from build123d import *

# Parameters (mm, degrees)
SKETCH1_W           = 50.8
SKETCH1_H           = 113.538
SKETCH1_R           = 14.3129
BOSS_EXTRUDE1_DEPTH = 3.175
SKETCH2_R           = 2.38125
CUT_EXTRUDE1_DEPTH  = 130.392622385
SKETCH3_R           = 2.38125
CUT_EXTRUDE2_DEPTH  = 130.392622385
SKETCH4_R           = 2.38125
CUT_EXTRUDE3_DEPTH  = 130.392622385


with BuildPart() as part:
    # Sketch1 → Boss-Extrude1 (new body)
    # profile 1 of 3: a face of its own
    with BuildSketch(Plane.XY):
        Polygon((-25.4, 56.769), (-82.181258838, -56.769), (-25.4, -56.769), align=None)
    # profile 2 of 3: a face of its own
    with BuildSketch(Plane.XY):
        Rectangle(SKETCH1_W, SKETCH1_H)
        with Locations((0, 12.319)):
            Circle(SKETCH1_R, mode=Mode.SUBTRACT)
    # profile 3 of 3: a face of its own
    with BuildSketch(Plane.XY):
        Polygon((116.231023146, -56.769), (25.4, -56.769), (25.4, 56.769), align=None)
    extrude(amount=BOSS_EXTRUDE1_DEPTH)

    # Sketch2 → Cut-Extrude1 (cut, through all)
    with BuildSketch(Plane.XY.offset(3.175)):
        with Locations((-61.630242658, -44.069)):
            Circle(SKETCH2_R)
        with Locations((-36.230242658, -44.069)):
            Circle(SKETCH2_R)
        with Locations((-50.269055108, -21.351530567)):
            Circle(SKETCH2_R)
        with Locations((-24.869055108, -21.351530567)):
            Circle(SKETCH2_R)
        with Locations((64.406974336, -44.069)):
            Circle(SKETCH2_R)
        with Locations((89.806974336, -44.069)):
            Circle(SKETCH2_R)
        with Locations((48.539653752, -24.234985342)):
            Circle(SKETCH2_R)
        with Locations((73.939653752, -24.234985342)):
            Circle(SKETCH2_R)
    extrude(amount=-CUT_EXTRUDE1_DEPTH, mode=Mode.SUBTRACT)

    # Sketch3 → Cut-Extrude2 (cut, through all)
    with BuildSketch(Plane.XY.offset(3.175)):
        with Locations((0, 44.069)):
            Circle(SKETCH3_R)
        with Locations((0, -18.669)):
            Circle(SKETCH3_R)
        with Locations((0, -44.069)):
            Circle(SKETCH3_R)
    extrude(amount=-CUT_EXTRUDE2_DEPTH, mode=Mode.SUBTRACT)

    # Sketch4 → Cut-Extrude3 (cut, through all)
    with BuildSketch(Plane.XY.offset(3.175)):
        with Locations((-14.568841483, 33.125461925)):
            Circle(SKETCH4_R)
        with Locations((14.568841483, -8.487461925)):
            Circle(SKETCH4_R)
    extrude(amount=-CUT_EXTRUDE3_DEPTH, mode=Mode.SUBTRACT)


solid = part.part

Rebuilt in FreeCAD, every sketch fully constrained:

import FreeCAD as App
import Part
import Sketcher

V = App.Vector
Q = App.Units.Quantity


def add_polygon(sketch, points):
    """Adds a closed chain of lines whose ends are joined by coincident constraints."""
    first, n = sketch.GeometryCount, len(points)
    for a, b in zip(points, points[1:] + points[:1]):
        sketch.addGeometry(Part.LineSegment(App.Vector(*a, 0), App.Vector(*b, 0)), False)
    for i in range(n):
        sketch.addConstraint(Sketcher.Constraint("Coincident", first + i, 2, first + (i + 1) % n, 1))

doc = App.newDocument("Part")
body = doc.addObject("PartDesign::Body", "Body")

sketch1 = body.newObject("Sketcher::SketchObject", "Sketch")
sketch1.AttachmentSupport = (doc.getObject("XY_Plane"), [""])
sketch1.MapMode = "FlatFace"
add_polygon(sketch1, [(-25, 57), (-82, -57), (116, -57), (25, 57)])
sketch1.addGeometry(Part.Circle(V(0, 12, 0), V(0, 0, 1), 14), False)
sketch1.addConstraint([
    Sketcher.Constraint("Horizontal", 1),
    Sketcher.Constraint("Horizontal", 3),
    Sketcher.Constraint("PointOnObject", 4, 3, -2),
    Sketcher.Constraint("DistanceX", 3, 2, 3, 1, Q("2 in")),
    Sketcher.Constraint("Diameter", 4, Q("1.127 in")),
    Sketcher.Constraint("DistanceX", -1, 1, 2, 2, Q("1 in")),
    Sketcher.Constraint("Angle", 0, Q("-116.57 deg")),
    Sketcher.Constraint("Angle", 2, Q("128.66 deg")),
    Sketcher.Constraint("DistanceY", 0, 2, 4, 3, Q("2.72 in")),
    Sketcher.Constraint("DistanceY", 4, 3, 2, 2, Q("1.75 in")),
    Sketcher.Constraint("DistanceY", -1, 1, 4, 3, Q("0.485 in")),
])
pad1 = body.newObject("PartDesign::Pad", "Pad")
pad1.Profile = sketch1
pad1.Length = Q("0.125 in")

sketch2 = body.newObject("Sketcher::SketchObject", "Sketch001")
sketch2.AttachmentSupport = (doc.getObject("XY_Plane"), [""])
sketch2.MapMode = "FlatFace"
sketch2.AttachmentOffset = App.Placement(V(0, 0, 0.125 * 25.4), App.Rotation())
sketch2.addGeometry([
    Part.Circle(V(-61.6, -44.1, 0), V(0, 0, 1), 2.4),
    Part.Circle(V(-36.2, -44.1, 0), V(0, 0, 1), 2.4),
    Part.Circle(V(-50.3, -21.4, 0), V(0, 0, 1), 2.4),
    Part.Circle(V(-24.9, -21.4, 0), V(0, 0, 1), 2.4),
    Part.Circle(V(64.4, -44.1, 0), V(0, 0, 1), 2.4),
    Part.Circle(V(89.8, -44.1, 0), V(0, 0, 1), 2.4),
    Part.Circle(V(48.5, -24.2, 0), V(0, 0, 1), 2.4),
    Part.Circle(V(73.9, -24.2, 0), V(0, 0, 1), 2.4),
], False)
sketch2.addConstraint([
    Sketcher.Constraint("Equal", 0, 1),
    Sketcher.Constraint("Equal", 1, 2),
    Sketcher.Constraint("Equal", 2, 3),
    Sketcher.Constraint("Equal", 3, 4),
    Sketcher.Constraint("Equal", 4, 5),
    Sketcher.Constraint("Equal", 5, 6),
    Sketcher.Constraint("Equal", 6, 7),
    Sketcher.Constraint("Horizontal", 0, 3, 1, 3),
    Sketcher.Constraint("Horizontal", 2, 3, 3, 3),
    Sketcher.Constraint("Horizontal", 1, 3, 4, 3),
    Sketcher.Constraint("Horizontal", 4, 3, 5, 3),
    Sketcher.Constraint("Horizontal", 6, 3, 7, 3),
    Sketcher.Constraint("Diameter", 0, Q("0.1875 in")),
    Sketcher.Constraint("DistanceX", 0, 3, 1, 3, Q("1 in")),
    Sketcher.Constraint("DistanceX", 2, 3, 3, 3, Q("1 in")),
    Sketcher.Constraint("DistanceX", 4, 3, 5, 3, Q("1 in")),
    Sketcher.Constraint("DistanceX", 6, 3, 7, 3, Q("1 in")),
    Sketcher.Constraint("DistanceY", 0, 3, -1, 1, Q("1.735 in")),
    Sketcher.Constraint("DistanceY", 2, 3, -1, 1, 21.351531),
    Sketcher.Constraint("DistanceX", 3, 3, 4, 3, 89.276029),
    Sketcher.Constraint("DistanceX", 6, 3, 4, 3, 15.867321),
    Sketcher.Constraint("DistanceX", 0, 3, -1, 1, 61.630243),
    Sketcher.Constraint("DistanceX", 2, 3, -1, 1, 50.269055),
    Sketcher.Constraint("DistanceY", 6, 3, -1, 1, 24.234985),
])
pocket1 = body.newObject("PartDesign::Pocket", "Pocket")
pocket1.Profile = sketch2
pocket1.Type = "ThroughAll"

sketch3 = body.newObject("Sketcher::SketchObject", "Sketch002")
sketch3.AttachmentSupport = (doc.getObject("XY_Plane"), [""])
sketch3.MapMode = "FlatFace"
sketch3.AttachmentOffset = App.Placement(V(0, 0, 0.125 * 25.4), App.Rotation())
sketch3.addGeometry([
    Part.Circle(V(0, 44.1, 0), V(0, 0, 1), 2.4),
    Part.Circle(V(0, -18.7, 0), V(0, 0, 1), 2.4),
    Part.Circle(V(0, -44.1, 0), V(0, 0, 1), 2.4),
], False)
sketch3.addConstraint([
    Sketcher.Constraint("Equal", 0, 1),
    Sketcher.Constraint("Equal", 1, 2),
    Sketcher.Constraint("Symmetric", 0, 3, 2, 3, -1, 1),
    Sketcher.Constraint("PointOnObject", 0, 3, -2),
    Sketcher.Constraint("PointOnObject", 1, 3, -2),
    Sketcher.Constraint("Diameter", 0, Q("0.1875 in")),
    Sketcher.Constraint("DistanceY", 2, 3, 1, 3, Q("1 in")),
    Sketcher.Constraint("DistanceY", 1, 3, 0, 3, Q("2.47 in")),
])
pocket2 = body.newObject("PartDesign::Pocket", "Pocket001")
pocket2.Profile = sketch3
pocket2.Type = "ThroughAll"

sketch4 = body.newObject("Sketcher::SketchObject", "Sketch003")
sketch4.AttachmentSupport = (doc.getObject("XY_Plane"), [""])
sketch4.MapMode = "FlatFace"
sketch4.AttachmentOffset = App.Placement(V(0, 0, 0.125 * 25.4), App.Rotation())
sketch4.addGeometry([
    Part.Circle(V(-14.6, 33.1, 0), V(0, 0, 1), 2.4),
    Part.Circle(V(14.6, -8.5, 0), V(0, 0, 1), 2.4),
], False)
sketch4.addConstraint([
    Sketcher.Constraint("Equal", 0, 1),
    Sketcher.Constraint("Diameter", 0, Q("0.1875 in")),
    Sketcher.Constraint("DistanceX", 0, 3, -1, 1, 14.568841),
    Sketcher.Constraint("DistanceY", -1, 1, 0, 3, 33.125462),
    Sketcher.Constraint("DistanceX", -1, 1, 1, 3, 14.568841),
    Sketcher.Constraint("DistanceY", 1, 3, -1, 1, 8.487462),
])
pocket3 = body.newObject("PartDesign::Pocket", "Pocket002")
pocket3.Profile = sketch4
pocket3.Type = "ThroughAll"

doc.recompute()
